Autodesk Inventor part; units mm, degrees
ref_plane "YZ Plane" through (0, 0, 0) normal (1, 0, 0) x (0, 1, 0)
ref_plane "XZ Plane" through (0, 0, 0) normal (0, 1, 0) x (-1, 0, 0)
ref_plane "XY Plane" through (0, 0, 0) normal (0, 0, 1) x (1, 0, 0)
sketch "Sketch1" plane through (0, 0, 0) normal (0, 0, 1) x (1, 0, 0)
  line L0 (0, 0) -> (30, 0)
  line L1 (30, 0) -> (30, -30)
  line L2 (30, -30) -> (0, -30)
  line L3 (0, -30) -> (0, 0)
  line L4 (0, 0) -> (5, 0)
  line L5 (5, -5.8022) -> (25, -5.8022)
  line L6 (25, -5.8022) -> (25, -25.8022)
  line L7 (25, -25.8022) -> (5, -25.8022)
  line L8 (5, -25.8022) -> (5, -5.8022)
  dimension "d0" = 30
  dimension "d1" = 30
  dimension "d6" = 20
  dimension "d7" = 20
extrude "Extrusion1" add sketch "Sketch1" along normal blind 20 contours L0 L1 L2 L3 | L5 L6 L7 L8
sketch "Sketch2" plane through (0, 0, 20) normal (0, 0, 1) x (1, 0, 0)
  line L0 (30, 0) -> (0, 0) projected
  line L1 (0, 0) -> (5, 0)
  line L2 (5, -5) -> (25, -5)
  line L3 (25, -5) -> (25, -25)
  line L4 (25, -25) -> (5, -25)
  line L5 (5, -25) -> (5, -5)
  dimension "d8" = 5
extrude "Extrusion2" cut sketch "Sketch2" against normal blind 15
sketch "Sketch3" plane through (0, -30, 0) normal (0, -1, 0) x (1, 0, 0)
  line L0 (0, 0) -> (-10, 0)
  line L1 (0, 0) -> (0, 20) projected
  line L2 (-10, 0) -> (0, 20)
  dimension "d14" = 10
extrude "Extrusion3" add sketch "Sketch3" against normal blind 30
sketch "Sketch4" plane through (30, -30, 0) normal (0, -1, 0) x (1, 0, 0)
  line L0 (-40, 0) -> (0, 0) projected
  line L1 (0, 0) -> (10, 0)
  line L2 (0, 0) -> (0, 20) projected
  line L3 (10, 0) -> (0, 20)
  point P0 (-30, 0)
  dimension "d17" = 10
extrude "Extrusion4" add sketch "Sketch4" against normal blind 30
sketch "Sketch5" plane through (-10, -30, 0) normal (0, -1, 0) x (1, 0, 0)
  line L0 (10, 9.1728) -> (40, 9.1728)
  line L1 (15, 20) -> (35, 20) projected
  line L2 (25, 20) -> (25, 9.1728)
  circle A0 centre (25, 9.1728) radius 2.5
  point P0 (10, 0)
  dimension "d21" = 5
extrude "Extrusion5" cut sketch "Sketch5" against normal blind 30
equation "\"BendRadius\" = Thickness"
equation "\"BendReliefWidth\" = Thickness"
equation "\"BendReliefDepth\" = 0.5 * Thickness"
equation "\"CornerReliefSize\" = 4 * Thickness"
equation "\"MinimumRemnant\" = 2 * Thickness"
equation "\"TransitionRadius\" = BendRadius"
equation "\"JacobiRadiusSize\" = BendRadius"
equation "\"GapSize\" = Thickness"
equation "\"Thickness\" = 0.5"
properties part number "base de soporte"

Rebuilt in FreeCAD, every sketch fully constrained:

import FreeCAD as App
import Part
import Sketcher


def add_polygon(sketch, points):
    """Adds a closed chain of lines whose ends are joined by coincident constraints."""
    first, n = sketch.GeometryCount, len(points)
    for a, b in zip(points, points[1:] + points[:1]):
        sketch.addGeometry(Part.LineSegment(App.Vector(*a, 0), App.Vector(*b, 0)), False)
    for i in range(n):
        sketch.addConstraint(Sketcher.Constraint("Coincident", first + i, 2, first + (i + 1) % n, 1))

doc = App.newDocument("Part")
params = doc.addObject("Spreadsheet::Sheet", "Params")
for row, (alias, value) in enumerate([
    ("sketch1_width", "30 mm"),
    ("pad1_length", "20 mm"),
    ("sketch2_width", "20 mm"),
    ("pocket1_length", "15 mm"),
    ("sketch3_width", "10 mm"),
    ("sketch3_height", "20 mm"),
    ("pad2_length", "30 mm"),
    ("sketch4_width", "10 mm"),
    ("sketch4_height", "20 mm"),
    ("pad3_length", "30 mm"),
    ("sketch5_diameter", "5 mm"),
    ("pocket2_length", "30 mm"),
], start=1):
    params.set(f"A{row}", alias)
    params.set(f"B{row}", "=" + value)
    params.setAlias(f"B{row}", alias)

body = doc.addObject("PartDesign::Body", "Body")

# Sketch on XY plane
sketch1 = body.newObject("Sketcher::SketchObject", "Sketch")
sketch1.AttachmentSupport = (doc.getObject("XY_Plane"), [""])
sketch1.MapMode = "FlatFace"
add_polygon(sketch1, [(0, 0), (0, -30), (30, -30), (30, 0)])  # lines 0-3
sketch1.addConstraint(Sketcher.Constraint("Vertical", 0))
sketch1.addConstraint(Sketcher.Constraint("Horizontal", 1))
sketch1.addConstraint(Sketcher.Constraint("Vertical", 2))
sketch1.addConstraint(Sketcher.Constraint("Horizontal", 3))
sketch1.addConstraint(Sketcher.Constraint("Coincident", 3, 2, -1, 1))
sketch1.addConstraint(Sketcher.Constraint("Equal", 3, 0))
sketch1.addConstraint(Sketcher.Constraint("DistanceX", 1, 1, 1, 2, 30.0))
sketch1.setExpression("Constraints[10]", "Params.sketch1_width")
pad1 = body.newObject("PartDesign::Pad", "Pad")
pad1.Profile = sketch1
pad1.setExpression("Length", "Params.pad1_length")

# Sketch on XY plane
sketch2 = body.newObject("Sketcher::SketchObject", "Sketch001")
sketch2.AttachmentSupport = (doc.getObject("XY_Plane"), [""])
sketch2.MapMode = "FlatFace"
sketch2.AttachmentOffset = App.Placement(App.Vector(0, 0, 20), App.Rotation())
add_polygon(sketch2, [(25, -5), (5, -5), (5, -25), (25, -25)])  # lines 0-3
sketch2.addConstraint(Sketcher.Constraint("Horizontal", 0))
sketch2.addConstraint(Sketcher.Constraint("Vertical", 1))
sketch2.addConstraint(Sketcher.Constraint("Horizontal", 2))
sketch2.addConstraint(Sketcher.Constraint("Vertical", 3))
sketch2.addConstraint(Sketcher.Constraint("Equal", 2, 1))
sketch2.addConstraint(Sketcher.Constraint("DistanceX", -1, 1, 0, 2, 5.0))
sketch2.addConstraint(Sketcher.Constraint("DistanceY", 0, 2, -1, 1, 5.0))
sketch2.addConstraint(Sketcher.Constraint("DistanceX", 0, 2, 0, 1, 20.0))
sketch2.setExpression("Constraints[11]", "Params.sketch2_width")
pocket1 = body.newObject("PartDesign::Pocket", "Pocket")
pocket1.Profile = sketch2
pocket1.setExpression("Length", "Params.pocket1_length")

# Sketch on XZ plane
sketch3 = body.newObject("Sketcher::SketchObject", "Sketch002")
sketch3.AttachmentSupport = (doc.getObject("XZ_Plane"), [""])
sketch3.MapMode = "FlatFace"
sketch3.AttachmentOffset = App.Placement(App.Vector(0, 0, 30), App.Rotation())
add_polygon(sketch3, [(-10, 0), (0, 0), (0, 20)])  # lines 0-2
sketch3.addConstraint(Sketcher.Constraint("Horizontal", 0))
sketch3.addConstraint(Sketcher.Constraint("Vertical", 1))
sketch3.addConstraint(Sketcher.Constraint("Coincident", 0, 2, -1, 1))
sketch3.addConstraint(Sketcher.Constraint("DistanceX", 0, 1, 0, 2, 10.0))
sketch3.addConstraint(Sketcher.Constraint("DistanceY", 1, 1, 1, 2, 20.0))
sketch3.setExpression("Constraints[6]", "Params.sketch3_width")
sketch3.setExpression("Constraints[7]", "Params.sketch3_height")
pad2 = body.newObject("PartDesign::Pad", "Pad001")
pad2.Profile = sketch3
pad2.setExpression("Length", "Params.pad2_length")
pad2.Reversed = True

# Sketch on XZ plane
sketch4 = body.newObject("Sketcher::SketchObject", "Sketch003")
sketch4.AttachmentSupport = (doc.getObject("XZ_Plane"), [""])
sketch4.MapMode = "FlatFace"
sketch4.AttachmentOffset = App.Placement(App.Vector(0, 0, 30), App.Rotation())
add_polygon(sketch4, [(30, 20), (30, 0), (40, 0)])  # lines 0-2
sketch4.addConstraint(Sketcher.Constraint("Vertical", 0))
sketch4.addConstraint(Sketcher.Constraint("Horizontal", 1))
sketch4.addConstraint(Sketcher.Constraint("PointOnObject", 0, 2, -1))
sketch4.addConstraint(Sketcher.Constraint("DistanceX", 1, 1, 1, 2, 10.0))
sketch4.addConstraint(Sketcher.Constraint("DistanceY", 0, 2, 0, 1, 20.0))
sketch4.addConstraint(Sketcher.Constraint("DistanceX", -1, 1, 0, 2, 30.0))
sketch4.setExpression("Constraints[6]", "Params.sketch4_width")
sketch4.setExpression("Constraints[7]", "Params.sketch4_height")
pad3 = body.newObject("PartDesign::Pad", "Pad002")
pad3.Profile = sketch4
pad3.setExpression("Length", "Params.pad3_length")
pad3.Reversed = True

# Sketch on XZ plane
sketch5 = body.newObject("Sketcher::SketchObject", "Sketch004")
sketch5.AttachmentSupport = (doc.getObject("XZ_Plane"), [""])
sketch5.MapMode = "FlatFace"
sketch5.AttachmentOffset = App.Placement(App.Vector(0, 0, 30), App.Rotation())
sketch5.addGeometry(Part.Circle(App.Vector(15, 9.2, 0), App.Vector(0, 0, 1), 2.5), False)
sketch5.addConstraint(Sketcher.Constraint("Diameter", 0, 5.0))
sketch5.addConstraint(Sketcher.Constraint("DistanceX", -1, 1, 0, 3, 15.0))
sketch5.addConstraint(Sketcher.Constraint("DistanceY", -1, 1, 0, 3, 9.1728))
sketch5.setExpression("Constraints[0]", "Params.sketch5_diameter")
pocket2 = body.newObject("PartDesign::Pocket", "Pocket001")
pocket2.Profile = sketch5
pocket2.setExpression("Length", "Params.pocket2_length")

doc.recompute()
